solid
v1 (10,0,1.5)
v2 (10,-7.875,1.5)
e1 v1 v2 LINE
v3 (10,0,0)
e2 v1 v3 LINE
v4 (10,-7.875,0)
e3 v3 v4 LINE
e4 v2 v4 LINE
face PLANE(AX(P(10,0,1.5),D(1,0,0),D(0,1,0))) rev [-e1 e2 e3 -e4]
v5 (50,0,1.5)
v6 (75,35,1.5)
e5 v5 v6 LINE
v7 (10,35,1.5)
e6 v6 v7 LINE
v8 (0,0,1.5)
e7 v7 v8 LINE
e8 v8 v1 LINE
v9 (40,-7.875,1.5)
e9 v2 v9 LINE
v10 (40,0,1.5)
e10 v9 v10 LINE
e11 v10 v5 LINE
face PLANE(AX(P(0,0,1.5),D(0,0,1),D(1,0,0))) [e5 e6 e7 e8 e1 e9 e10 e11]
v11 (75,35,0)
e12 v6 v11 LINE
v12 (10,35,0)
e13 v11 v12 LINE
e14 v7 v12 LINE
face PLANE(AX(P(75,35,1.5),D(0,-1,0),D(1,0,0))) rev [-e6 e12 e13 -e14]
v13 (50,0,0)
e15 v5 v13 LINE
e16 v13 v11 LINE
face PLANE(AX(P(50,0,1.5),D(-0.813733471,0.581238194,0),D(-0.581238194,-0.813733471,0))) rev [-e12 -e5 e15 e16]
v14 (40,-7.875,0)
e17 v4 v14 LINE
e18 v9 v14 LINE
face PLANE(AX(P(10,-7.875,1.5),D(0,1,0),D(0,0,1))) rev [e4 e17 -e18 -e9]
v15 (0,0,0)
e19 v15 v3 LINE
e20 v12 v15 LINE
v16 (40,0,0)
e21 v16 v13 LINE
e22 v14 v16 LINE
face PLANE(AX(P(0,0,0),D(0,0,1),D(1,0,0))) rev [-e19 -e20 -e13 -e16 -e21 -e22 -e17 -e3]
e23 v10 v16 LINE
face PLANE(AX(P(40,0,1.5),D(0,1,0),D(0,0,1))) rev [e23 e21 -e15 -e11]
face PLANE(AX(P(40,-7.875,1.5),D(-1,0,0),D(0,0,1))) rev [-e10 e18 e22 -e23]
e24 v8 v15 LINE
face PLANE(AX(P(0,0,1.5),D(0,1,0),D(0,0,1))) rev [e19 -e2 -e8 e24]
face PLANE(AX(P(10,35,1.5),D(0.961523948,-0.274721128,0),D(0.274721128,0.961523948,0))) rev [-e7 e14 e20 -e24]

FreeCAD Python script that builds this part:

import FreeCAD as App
import Part
import Sketcher


def add_polygon(sketch, points):
    """Adds a closed chain of lines whose ends are joined by coincident constraints."""
    first, n = sketch.GeometryCount, len(points)
    for a, b in zip(points, points[1:] + points[:1]):
        sketch.addGeometry(Part.LineSegment(App.Vector(*a, 0), App.Vector(*b, 0)), False)
    for i in range(n):
        sketch.addConstraint(Sketcher.Constraint("Coincident", first + i, 2, first + (i + 1) % n, 1))

doc = App.newDocument("Part")
params = doc.addObject("Spreadsheet::Sheet", "Params")
for row, (alias, value) in enumerate([
    ("sketch1_width", "10 mm"),
    ("sketch1_width2", "30 mm"),
    ("sketch1_width3", "65 mm"),
    ("pad1_length", "1.5 mm"),
], start=1):
    params.set(f"A{row}", alias)
    params.set(f"B{row}", "=" + value)
    params.setAlias(f"B{row}", alias)

body = doc.addObject("PartDesign::Body", "Body")

# Sketch on XY plane
sketch1 = doc.addObject("Sketcher::SketchObject", "Sketch")
body.addObject(sketch1)
sketch1.AttachmentSupport = (doc.XY_Plane, [""])
sketch1.MapMode = "FlatFace"
add_polygon(sketch1, [(0, 0), (10, 0), (10, -8), (40, -8), (40, 0), (50, 0), (75, 35), (10, 35)])  # lines 0-7
sketch1.addConstraint([
    Sketcher.Constraint("Horizontal", 0),
    Sketcher.Constraint("Vertical", 1),
    Sketcher.Constraint("Horizontal", 2),
    Sketcher.Constraint("Vertical", 3),
    Sketcher.Constraint("Horizontal", 4),
    Sketcher.Constraint("Horizontal", 6),
    Sketcher.Constraint("Coincident", 7, 2, -1, 1),
    Sketcher.Constraint("PointOnObject", 3, 2, -1),
    Sketcher.Constraint("Vertical", 1, 2, 6, 2),
    Sketcher.Constraint("Equal", 0, 4),
    Sketcher.Constraint("DistanceX", 0, 1, 0, 2, 10.0),
    Sketcher.Constraint("DistanceX", 2, 1, 2, 2, 30.0),
    Sketcher.Constraint("DistanceX", 6, 2, 6, 1, 65.0),
    Sketcher.Constraint("DistanceY", -1, 1, 5, 2, 35.0),
    Sketcher.Constraint("DistanceY", 1, 2, 1, 1, 7.875),
])
sketch1.setExpression("Constraints[18]", "Params.sketch1_width")
sketch1.setExpression("Constraints[19]", "Params.sketch1_width2")
sketch1.setExpression("Constraints[20]", "Params.sketch1_width3")
pad1 = doc.addObject("PartDesign::Pad", "Pad")
body.addObject(pad1)
pad1.Profile = sketch1
pad1.setExpression("Length", "Params.pad1_length")

doc.recompute()
